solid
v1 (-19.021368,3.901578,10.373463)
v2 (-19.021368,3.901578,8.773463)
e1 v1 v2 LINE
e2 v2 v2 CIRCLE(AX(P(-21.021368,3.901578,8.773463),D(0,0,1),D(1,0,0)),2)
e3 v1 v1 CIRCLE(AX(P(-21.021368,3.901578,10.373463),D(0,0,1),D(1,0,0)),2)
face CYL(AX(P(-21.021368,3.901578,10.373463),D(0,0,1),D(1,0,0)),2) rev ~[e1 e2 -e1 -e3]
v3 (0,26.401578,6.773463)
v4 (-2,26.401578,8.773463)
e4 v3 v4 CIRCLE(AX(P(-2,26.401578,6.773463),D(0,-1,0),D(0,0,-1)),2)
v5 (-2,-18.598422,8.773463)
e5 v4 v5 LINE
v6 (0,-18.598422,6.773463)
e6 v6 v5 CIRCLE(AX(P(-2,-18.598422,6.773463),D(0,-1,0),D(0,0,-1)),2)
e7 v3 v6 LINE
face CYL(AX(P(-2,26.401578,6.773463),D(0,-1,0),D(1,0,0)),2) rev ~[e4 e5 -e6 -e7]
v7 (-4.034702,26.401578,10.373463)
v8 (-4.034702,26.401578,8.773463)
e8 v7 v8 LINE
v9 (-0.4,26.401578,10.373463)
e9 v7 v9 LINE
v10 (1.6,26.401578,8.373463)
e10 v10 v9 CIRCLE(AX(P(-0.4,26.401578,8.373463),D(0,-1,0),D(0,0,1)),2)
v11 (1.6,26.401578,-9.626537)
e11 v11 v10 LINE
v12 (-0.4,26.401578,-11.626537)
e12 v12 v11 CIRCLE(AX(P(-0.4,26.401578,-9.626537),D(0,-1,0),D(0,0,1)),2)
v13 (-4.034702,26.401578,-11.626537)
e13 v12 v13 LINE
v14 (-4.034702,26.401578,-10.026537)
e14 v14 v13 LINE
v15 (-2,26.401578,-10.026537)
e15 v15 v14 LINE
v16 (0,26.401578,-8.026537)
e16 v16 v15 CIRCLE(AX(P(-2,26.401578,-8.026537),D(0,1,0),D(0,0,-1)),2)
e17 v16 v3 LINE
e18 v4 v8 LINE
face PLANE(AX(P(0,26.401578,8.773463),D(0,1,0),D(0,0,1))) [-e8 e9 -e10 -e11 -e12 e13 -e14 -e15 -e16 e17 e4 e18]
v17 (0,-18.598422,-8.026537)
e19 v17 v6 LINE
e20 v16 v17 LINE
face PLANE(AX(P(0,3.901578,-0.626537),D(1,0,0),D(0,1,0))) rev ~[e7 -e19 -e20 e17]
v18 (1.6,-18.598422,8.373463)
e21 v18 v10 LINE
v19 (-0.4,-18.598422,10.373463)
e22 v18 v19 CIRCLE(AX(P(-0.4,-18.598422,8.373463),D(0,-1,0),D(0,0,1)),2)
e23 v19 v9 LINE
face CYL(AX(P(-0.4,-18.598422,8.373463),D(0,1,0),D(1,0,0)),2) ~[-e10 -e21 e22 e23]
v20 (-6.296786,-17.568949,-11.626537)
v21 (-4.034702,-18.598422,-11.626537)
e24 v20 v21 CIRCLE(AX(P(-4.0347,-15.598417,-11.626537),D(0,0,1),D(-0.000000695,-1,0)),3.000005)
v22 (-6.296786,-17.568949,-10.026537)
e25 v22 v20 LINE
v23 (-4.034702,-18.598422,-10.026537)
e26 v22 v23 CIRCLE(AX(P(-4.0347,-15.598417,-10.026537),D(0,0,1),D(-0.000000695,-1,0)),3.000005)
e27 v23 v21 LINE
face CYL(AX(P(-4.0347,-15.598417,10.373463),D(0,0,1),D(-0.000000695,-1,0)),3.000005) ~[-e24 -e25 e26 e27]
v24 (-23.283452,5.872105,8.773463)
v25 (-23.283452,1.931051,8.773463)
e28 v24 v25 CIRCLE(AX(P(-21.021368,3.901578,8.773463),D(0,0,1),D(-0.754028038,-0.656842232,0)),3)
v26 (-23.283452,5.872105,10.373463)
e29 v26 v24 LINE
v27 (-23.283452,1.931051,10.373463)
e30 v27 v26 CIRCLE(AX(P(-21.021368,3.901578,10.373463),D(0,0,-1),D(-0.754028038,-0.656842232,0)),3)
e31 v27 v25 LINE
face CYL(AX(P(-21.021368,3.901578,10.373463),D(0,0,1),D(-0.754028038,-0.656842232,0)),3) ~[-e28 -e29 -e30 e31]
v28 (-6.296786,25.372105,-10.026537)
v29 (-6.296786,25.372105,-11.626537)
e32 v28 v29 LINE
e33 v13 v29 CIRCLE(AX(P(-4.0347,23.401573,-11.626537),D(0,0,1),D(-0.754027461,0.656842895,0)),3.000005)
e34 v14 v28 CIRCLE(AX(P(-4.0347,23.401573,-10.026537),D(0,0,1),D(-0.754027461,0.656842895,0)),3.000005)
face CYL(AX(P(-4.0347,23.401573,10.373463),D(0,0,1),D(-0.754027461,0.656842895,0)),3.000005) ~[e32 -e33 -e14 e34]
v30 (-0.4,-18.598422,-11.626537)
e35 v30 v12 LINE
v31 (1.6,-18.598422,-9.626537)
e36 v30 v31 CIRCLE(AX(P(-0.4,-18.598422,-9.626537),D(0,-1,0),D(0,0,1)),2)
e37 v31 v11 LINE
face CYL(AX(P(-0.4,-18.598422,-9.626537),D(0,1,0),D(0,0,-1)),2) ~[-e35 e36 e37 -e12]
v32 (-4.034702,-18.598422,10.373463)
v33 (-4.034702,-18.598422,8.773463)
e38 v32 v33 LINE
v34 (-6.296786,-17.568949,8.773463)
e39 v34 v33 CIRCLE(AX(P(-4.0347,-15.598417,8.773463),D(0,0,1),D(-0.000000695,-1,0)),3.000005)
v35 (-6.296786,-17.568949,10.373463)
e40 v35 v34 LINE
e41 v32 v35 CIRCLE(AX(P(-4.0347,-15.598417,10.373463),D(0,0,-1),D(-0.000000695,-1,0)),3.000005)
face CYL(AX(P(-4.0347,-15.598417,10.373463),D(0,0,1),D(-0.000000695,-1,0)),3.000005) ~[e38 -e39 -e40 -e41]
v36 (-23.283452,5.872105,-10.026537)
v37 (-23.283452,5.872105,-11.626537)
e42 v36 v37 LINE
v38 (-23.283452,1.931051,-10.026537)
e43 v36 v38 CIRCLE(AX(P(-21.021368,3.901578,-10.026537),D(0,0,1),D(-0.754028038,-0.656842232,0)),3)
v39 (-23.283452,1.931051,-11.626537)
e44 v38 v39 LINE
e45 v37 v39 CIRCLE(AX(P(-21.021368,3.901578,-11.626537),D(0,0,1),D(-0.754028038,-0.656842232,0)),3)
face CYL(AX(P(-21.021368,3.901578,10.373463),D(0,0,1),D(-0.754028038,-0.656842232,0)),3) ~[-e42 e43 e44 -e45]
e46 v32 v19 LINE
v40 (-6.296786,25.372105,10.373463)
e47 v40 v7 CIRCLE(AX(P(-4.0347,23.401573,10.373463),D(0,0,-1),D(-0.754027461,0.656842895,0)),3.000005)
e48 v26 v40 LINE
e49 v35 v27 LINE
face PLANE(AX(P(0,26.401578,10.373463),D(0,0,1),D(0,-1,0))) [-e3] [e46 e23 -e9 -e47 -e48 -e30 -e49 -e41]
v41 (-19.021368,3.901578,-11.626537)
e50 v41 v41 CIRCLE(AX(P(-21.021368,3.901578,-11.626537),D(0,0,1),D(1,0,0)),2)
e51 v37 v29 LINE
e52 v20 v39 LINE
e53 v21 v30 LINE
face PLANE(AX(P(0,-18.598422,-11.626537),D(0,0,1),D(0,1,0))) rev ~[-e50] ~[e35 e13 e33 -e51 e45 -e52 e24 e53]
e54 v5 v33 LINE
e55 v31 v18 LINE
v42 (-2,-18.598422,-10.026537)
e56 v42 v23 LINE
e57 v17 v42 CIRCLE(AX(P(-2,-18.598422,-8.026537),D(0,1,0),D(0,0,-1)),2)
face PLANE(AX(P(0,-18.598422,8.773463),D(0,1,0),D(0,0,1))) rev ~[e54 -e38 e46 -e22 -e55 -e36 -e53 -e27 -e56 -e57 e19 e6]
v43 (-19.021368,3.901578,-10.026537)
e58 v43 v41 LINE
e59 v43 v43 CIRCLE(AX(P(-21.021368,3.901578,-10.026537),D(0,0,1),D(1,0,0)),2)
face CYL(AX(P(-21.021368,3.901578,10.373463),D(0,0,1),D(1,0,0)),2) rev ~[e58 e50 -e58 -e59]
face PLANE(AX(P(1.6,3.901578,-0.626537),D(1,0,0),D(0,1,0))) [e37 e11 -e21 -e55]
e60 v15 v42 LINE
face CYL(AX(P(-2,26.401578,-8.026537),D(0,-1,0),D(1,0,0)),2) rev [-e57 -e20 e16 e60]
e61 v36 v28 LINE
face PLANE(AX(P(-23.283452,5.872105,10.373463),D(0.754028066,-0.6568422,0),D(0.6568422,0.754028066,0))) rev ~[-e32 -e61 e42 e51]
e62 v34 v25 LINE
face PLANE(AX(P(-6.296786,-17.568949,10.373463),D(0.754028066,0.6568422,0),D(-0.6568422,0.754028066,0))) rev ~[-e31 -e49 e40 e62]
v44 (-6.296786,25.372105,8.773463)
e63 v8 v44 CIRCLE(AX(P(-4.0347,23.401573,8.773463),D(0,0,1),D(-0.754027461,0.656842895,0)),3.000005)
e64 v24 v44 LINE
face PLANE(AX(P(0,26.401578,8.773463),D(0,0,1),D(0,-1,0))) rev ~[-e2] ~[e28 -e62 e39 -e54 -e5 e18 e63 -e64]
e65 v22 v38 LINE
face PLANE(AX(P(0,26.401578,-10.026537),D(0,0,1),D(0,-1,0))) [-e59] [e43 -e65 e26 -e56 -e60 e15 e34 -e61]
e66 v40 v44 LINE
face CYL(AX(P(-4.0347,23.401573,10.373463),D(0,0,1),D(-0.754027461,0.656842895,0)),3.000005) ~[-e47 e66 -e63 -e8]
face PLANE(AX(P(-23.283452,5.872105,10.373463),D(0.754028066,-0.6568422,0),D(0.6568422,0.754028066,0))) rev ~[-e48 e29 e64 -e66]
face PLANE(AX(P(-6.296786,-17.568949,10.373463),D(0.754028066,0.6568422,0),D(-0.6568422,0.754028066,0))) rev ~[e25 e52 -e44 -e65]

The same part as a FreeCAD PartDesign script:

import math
import FreeCAD as App
import Part
import Sketcher
Q = App.Units.Quantity


def edges_at(feature, points):
    """Names of the edges that pass closest to the given points."""
    edges = feature.Shape.Edges
    near = lambda p: min(range(len(edges)), key=lambda i: edges[i].distToShape(Part.Vertex(*p))[0])
    return sorted({f"Edge{near(p) + 1}" for p in points})


def add_polygon(sketch, points):
    """Adds a closed chain of lines whose ends are joined by coincident constraints."""
    first, n = sketch.GeometryCount, len(points)
    for a, b in zip(points, points[1:] + points[:1]):
        sketch.addGeometry(Part.LineSegment(App.Vector(*a, 0), App.Vector(*b, 0)), False)
    for i in range(n):
        sketch.addConstraint(Sketcher.Constraint("Coincident", first + i, 2, first + (i + 1) % n, 1))

doc = App.newDocument("Part")
params = doc.addObject("Spreadsheet::Sheet", "Params")
for row, (alias, value) in enumerate([
    ("sketch1_width", "45 mm"),
    ("sketch1_height", "22 mm"),
    ("pad1_length", "1.6 mm"),
    ("sketch2_width", "45 mm"),
    ("sketch2_height", "1.6 mm"),
    ("pad2_length", "25 mm"),
    ("sketch3_diameter", "4 mm"),
    ("sketch3_radius", "3 mm"),
    ("sketch3_height", "45 mm"),
    ("pocket1_length", "25 mm"),
    ("fillet_radius", "2 mm"),
], start=1):
    params.set(f"A{row}", alias)
    params.set(f"B{row}", "=" + value)
    params.setAlias(f"B{row}", alias)

body = doc.addObject("PartDesign::Body", "Body")

sketch1 = body.newObject("Sketcher::SketchObject", "Sketch")
sketch1.AttachmentSupport = (doc.getObject("YZ_Plane"), [""])
sketch1.MapMode = "FlatFace"
add_polygon(sketch1, [(-19, 10), (-19, -12), (26, -12), (26, 10)])
sketch1.addConstraint([
    Sketcher.Constraint("Vertical", 0),
    Sketcher.Constraint("Horizontal", 1),
    Sketcher.Constraint("Vertical", 2),
    Sketcher.Constraint("Horizontal", 3),
    Sketcher.Constraint("DistanceX", 1, 1, 1, 2, Q("45 mm")),
    Sketcher.Constraint("DistanceY", 0, 2, 0, 1, Q("22 mm")),
    Sketcher.Constraint("DistanceX", 0, 2, -1, 1, Q("18.598422 mm")),
    Sketcher.Constraint("DistanceY", 0, 2, -1, 1, Q("11.626537 mm")),
])
sketch1.setExpression("Constraints[8]", "Params.sketch1_width")
sketch1.setExpression("Constraints[9]", "Params.sketch1_height")
pad1 = body.newObject("PartDesign::Pad", "Pad")
pad1.Profile = sketch1
pad1.setExpression("Length", "Params.pad1_length")

sketch2 = body.newObject("Sketcher::SketchObject", "Sketch001")
sketch2.AttachmentSupport = (doc.getObject("YZ_Plane"), [""])
sketch2.MapMode = "FlatFace"
add_polygon(sketch2, [(26.4, 10.4), (26.4, 8.8), (-18.6, 8.8), (-18.6, 10.4)])
add_polygon(sketch2, [(26.4, -10), (26.4, -11.6), (-18.6, -11.6), (-18.6, -10)])
sketch2.addConstraint([
    Sketcher.Constraint("Vertical", 0),
    Sketcher.Constraint("Horizontal", 1),
    Sketcher.Constraint("Vertical", 2),
    Sketcher.Constraint("Horizontal", 3),
    Sketcher.Constraint("Vertical", 4),
    Sketcher.Constraint("Horizontal", 5),
    Sketcher.Constraint("Vertical", 6),
    Sketcher.Constraint("Horizontal", 7),
    Sketcher.Constraint("Vertical", 3, 2, 4, 2),
    Sketcher.Constraint("Vertical", 2, 2, 5, 2),
    Sketcher.Constraint("Equal", 2, 4),
    Sketcher.Constraint("DistanceX", 1, 2, 1, 1, Q("45 mm")),
    Sketcher.Constraint("DistanceY", 0, 2, 0, 1, Q("1.6 mm")),
    Sketcher.Constraint("DistanceY", 4, 2, 3, 2, Q("22 mm")),
    Sketcher.Constraint("DistanceX", -1, 1, 0, 2, Q("26.401578 mm")),
    Sketcher.Constraint("DistanceY", -1, 1, 0, 2, Q("8.773463 mm")),
])
sketch2.setExpression("Constraints[19]", "Params.sketch2_width")
sketch2.setExpression("Constraints[20]", "Params.sketch2_height")
pad2 = body.newObject("PartDesign::Pad", "Pad001")
pad2.Profile = sketch2
pad2.setExpression("Length", "Params.pad2_length")
pad2.Reversed = True

sketch3 = body.newObject("Sketcher::SketchObject", "Sketch002")
sketch3.AttachmentSupport = (doc.getObject("XY_Plane"), [""])
sketch3.MapMode = "FlatFace"
sketch3.AttachmentOffset = App.Placement(App.Vector(0, 0, 10.373463), App.Rotation())
sketch3.addGeometry([
    Part.LineSegment(App.Vector(-25, -18.6, 0), App.Vector(-4, -18.6, 0)),
    Part.ArcOfCircle(Part.Circle(App.Vector(-4, -15.6, 0), App.Vector(0, 0, 1), 3), math.radians(-139), math.radians(-90)),
    Part.LineSegment(App.Vector(-6.3, -17.6, 0), App.Vector(-23.3, 1.9, 0)),
    Part.ArcOfCircle(Part.Circle(App.Vector(-21, 3.9, 0), App.Vector(0, 0, 1), 3), math.radians(139), math.radians(221)),
    Part.LineSegment(App.Vector(-23.3, 5.9, 0), App.Vector(-6.3, 25.4, 0)),
    Part.ArcOfCircle(Part.Circle(App.Vector(-4, 23.4, 0), App.Vector(0, 0, 1), 3), math.radians(90), math.radians(139)),
    Part.LineSegment(App.Vector(-4, 26.4, 0), App.Vector(-25, 26.4, 0)),
    Part.LineSegment(App.Vector(-25, 26.4, 0), App.Vector(-25, -18.6, 0)),
    Part.Circle(App.Vector(-21, 3.9, 0), App.Vector(0, 0, 1), 2),
], False)
sketch3.addConstraint([
    Sketcher.Constraint("Tangent", 0, 2, 1, 2),
    Sketcher.Constraint("Tangent", 1, 1, 2, 1),
    Sketcher.Constraint("Tangent", 2, 2, 3, 2),
    Sketcher.Constraint("Tangent", 3, 1, 4, 1),
    Sketcher.Constraint("Tangent", 4, 2, 5, 2),
    Sketcher.Constraint("Tangent", 5, 1, 6, 1),
    Sketcher.Constraint("Coincident", 6, 2, 7, 1),
    Sketcher.Constraint("Coincident", 7, 2, 0, 1),
    Sketcher.Constraint("Horizontal", 0),
    Sketcher.Constraint("Horizontal", 6),
    Sketcher.Constraint("Vertical", 7),
    Sketcher.Constraint("Coincident", 8, 3, 3, 3),
    Sketcher.Constraint("Equal", 1, 5),
    Sketcher.Constraint("Vertical", 1, 3, 5, 3),
    Sketcher.Constraint("Vertical", 2, 2, 3, 1),
    Sketcher.Constraint("Diameter", 8, Q("4 mm")),
    Sketcher.Constraint("Radius", 3, Q("3 mm")),
    Sketcher.Constraint("DistanceY", 7, 2, 7, 1, Q("45 mm")),
    Sketcher.Constraint("DistanceX", 6, 2, -1, 1, Q("25 mm")),
    Sketcher.Constraint("DistanceY", 1, 1, 2, 2, Q("19.5 mm")),
    Sketcher.Constraint("DistanceX", 0, 1, 0, 2, Q("20.965298 mm")),
    Sketcher.Constraint("DistanceY", -1, 1, 3, 3, Q("3.901578 mm")),
    Sketcher.Constraint("DistanceY", 1, 1, -1, 1, Q("17.568949 mm")),
])
sketch3.setExpression("Constraints[15]", "Params.sketch3_diameter")
sketch3.setExpression("Constraints[16]", "Params.sketch3_radius")
sketch3.setExpression("Constraints[17]", "Params.sketch3_height")
pocket1 = body.newObject("PartDesign::Pocket", "Pocket")
pocket1.Profile = sketch3
pocket1.setExpression("Length", "Params.pocket1_length")
doc.recompute()

fillet = body.newObject("PartDesign::Fillet", "Fillet")
fillet.Base = (pocket1, edges_at(pocket1, [
    (1.6, 3.902, -11.627),
    (1.6, 3.902, 10.373),
    (0, 3.902, -10.027),
    (0, 3.902, 8.773),
]))
fillet.setExpression("Radius", "Params.fillet_radius")

doc.recompute()
